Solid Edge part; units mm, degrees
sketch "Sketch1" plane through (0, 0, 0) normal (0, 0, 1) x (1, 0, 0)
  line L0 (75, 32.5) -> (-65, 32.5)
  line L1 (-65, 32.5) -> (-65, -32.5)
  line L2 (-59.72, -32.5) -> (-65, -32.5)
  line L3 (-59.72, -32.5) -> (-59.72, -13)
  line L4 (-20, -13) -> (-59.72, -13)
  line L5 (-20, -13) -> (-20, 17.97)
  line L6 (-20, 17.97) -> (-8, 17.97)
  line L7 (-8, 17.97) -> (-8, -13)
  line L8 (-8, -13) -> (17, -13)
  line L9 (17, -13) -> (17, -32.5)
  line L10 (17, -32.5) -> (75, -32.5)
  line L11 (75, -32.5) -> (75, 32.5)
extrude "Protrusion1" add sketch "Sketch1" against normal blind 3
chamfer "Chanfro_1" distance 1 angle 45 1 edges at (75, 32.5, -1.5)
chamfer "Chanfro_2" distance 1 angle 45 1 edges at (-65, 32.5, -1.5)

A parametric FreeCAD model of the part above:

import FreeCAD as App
import Part
import Sketcher


def edges_at(feature, points):
    """Names of the edges that pass closest to the given points."""
    edges = feature.Shape.Edges
    near = lambda p: min(range(len(edges)), key=lambda i: edges[i].distToShape(Part.Vertex(*p))[0])
    return sorted({f"Edge{near(p) + 1}" for p in points})


def add_polygon(sketch, points):
    """Adds a closed chain of lines whose ends are joined by coincident constraints."""
    first, n = sketch.GeometryCount, len(points)
    for a, b in zip(points, points[1:] + points[:1]):
        sketch.addGeometry(Part.LineSegment(App.Vector(*a, 0), App.Vector(*b, 0)), False)
    for i in range(n):
        sketch.addConstraint(Sketcher.Constraint("Coincident", first + i, 2, first + (i + 1) % n, 1))

doc = App.newDocument("Part")
body = doc.addObject("PartDesign::Body", "Body")

# Sketch on XY plane
sketch1 = body.newObject("Sketcher::SketchObject", "Sketch")
sketch1.AttachmentSupport = (doc.getObject("XY_Plane"), [""])
sketch1.MapMode = "FlatFace"
add_polygon(sketch1, [(75, -32.5), (75, 32.5), (-65, 32.5), (-65, -32.5), (-59.72, -32.5), (-59.72, -13), (-20, -13), (-20, 17.97), (-8, 17.97), (-8, -13), (17, -13), (17, -32.5)])  # lines 0-11
sketch1.addConstraint([
    Sketcher.Constraint("Vertical", 0),
    Sketcher.Constraint("Horizontal", 1),
    Sketcher.Constraint("Vertical", 2),
    Sketcher.Constraint("Horizontal", 3),
    Sketcher.Constraint("Vertical", 4),
    Sketcher.Constraint("Horizontal", 5),
    Sketcher.Constraint("Vertical", 6),
    Sketcher.Constraint("Horizontal", 7),
    Sketcher.Constraint("Vertical", 8),
    Sketcher.Constraint("Horizontal", 9),
    Sketcher.Constraint("Vertical", 10),
    Sketcher.Constraint("Horizontal", 11),
    Sketcher.Constraint("Horizontal", 5, 2, 8, 2),
    Sketcher.Constraint("Horizontal", 3, 2, 10, 2),
    Sketcher.Constraint("DistanceX", 1, 2, 1, 1, 140.0),
    Sketcher.Constraint("DistanceX", 7, 1, 7, 2, 12.0),
    Sketcher.Constraint("DistanceX", 9, 1, 9, 2, 25.0),
    Sketcher.Constraint("DistanceX", 11, 1, 11, 2, 58.0),
    Sketcher.Constraint("DistanceY", 0, 1, 0, 2, 65.0),
    Sketcher.Constraint("DistanceY", 4, 1, 4, 2, 19.5),
    Sketcher.Constraint("DistanceX", -1, 1, 0, 2, 75.0),
    Sketcher.Constraint("DistanceY", 4, 2, -1, 1, 13.0),
    Sketcher.Constraint("DistanceX", 3, 1, 3, 2, 5.28),
    Sketcher.Constraint("DistanceY", 6, 1, 6, 2, 30.97),
])
pad1 = body.newObject("PartDesign::Pad", "Pad")
pad1.Profile = sketch1
pad1.Length = 3
pad1.Reversed = True
doc.recompute()

chamfer = body.newObject("PartDesign::Chamfer", "Chamfer")
chamfer.Base = (pad1, edges_at(pad1, [(75, 32.5, -1.5)]))
chamfer.Size = 1
doc.recompute()

chamfer2 = body.newObject("PartDesign::Chamfer", "Chamfer001")
chamfer2.Base = (chamfer, edges_at(chamfer, [(-65, 32.5, -1.5)]))
chamfer2.Size = 1

doc.recompute()
